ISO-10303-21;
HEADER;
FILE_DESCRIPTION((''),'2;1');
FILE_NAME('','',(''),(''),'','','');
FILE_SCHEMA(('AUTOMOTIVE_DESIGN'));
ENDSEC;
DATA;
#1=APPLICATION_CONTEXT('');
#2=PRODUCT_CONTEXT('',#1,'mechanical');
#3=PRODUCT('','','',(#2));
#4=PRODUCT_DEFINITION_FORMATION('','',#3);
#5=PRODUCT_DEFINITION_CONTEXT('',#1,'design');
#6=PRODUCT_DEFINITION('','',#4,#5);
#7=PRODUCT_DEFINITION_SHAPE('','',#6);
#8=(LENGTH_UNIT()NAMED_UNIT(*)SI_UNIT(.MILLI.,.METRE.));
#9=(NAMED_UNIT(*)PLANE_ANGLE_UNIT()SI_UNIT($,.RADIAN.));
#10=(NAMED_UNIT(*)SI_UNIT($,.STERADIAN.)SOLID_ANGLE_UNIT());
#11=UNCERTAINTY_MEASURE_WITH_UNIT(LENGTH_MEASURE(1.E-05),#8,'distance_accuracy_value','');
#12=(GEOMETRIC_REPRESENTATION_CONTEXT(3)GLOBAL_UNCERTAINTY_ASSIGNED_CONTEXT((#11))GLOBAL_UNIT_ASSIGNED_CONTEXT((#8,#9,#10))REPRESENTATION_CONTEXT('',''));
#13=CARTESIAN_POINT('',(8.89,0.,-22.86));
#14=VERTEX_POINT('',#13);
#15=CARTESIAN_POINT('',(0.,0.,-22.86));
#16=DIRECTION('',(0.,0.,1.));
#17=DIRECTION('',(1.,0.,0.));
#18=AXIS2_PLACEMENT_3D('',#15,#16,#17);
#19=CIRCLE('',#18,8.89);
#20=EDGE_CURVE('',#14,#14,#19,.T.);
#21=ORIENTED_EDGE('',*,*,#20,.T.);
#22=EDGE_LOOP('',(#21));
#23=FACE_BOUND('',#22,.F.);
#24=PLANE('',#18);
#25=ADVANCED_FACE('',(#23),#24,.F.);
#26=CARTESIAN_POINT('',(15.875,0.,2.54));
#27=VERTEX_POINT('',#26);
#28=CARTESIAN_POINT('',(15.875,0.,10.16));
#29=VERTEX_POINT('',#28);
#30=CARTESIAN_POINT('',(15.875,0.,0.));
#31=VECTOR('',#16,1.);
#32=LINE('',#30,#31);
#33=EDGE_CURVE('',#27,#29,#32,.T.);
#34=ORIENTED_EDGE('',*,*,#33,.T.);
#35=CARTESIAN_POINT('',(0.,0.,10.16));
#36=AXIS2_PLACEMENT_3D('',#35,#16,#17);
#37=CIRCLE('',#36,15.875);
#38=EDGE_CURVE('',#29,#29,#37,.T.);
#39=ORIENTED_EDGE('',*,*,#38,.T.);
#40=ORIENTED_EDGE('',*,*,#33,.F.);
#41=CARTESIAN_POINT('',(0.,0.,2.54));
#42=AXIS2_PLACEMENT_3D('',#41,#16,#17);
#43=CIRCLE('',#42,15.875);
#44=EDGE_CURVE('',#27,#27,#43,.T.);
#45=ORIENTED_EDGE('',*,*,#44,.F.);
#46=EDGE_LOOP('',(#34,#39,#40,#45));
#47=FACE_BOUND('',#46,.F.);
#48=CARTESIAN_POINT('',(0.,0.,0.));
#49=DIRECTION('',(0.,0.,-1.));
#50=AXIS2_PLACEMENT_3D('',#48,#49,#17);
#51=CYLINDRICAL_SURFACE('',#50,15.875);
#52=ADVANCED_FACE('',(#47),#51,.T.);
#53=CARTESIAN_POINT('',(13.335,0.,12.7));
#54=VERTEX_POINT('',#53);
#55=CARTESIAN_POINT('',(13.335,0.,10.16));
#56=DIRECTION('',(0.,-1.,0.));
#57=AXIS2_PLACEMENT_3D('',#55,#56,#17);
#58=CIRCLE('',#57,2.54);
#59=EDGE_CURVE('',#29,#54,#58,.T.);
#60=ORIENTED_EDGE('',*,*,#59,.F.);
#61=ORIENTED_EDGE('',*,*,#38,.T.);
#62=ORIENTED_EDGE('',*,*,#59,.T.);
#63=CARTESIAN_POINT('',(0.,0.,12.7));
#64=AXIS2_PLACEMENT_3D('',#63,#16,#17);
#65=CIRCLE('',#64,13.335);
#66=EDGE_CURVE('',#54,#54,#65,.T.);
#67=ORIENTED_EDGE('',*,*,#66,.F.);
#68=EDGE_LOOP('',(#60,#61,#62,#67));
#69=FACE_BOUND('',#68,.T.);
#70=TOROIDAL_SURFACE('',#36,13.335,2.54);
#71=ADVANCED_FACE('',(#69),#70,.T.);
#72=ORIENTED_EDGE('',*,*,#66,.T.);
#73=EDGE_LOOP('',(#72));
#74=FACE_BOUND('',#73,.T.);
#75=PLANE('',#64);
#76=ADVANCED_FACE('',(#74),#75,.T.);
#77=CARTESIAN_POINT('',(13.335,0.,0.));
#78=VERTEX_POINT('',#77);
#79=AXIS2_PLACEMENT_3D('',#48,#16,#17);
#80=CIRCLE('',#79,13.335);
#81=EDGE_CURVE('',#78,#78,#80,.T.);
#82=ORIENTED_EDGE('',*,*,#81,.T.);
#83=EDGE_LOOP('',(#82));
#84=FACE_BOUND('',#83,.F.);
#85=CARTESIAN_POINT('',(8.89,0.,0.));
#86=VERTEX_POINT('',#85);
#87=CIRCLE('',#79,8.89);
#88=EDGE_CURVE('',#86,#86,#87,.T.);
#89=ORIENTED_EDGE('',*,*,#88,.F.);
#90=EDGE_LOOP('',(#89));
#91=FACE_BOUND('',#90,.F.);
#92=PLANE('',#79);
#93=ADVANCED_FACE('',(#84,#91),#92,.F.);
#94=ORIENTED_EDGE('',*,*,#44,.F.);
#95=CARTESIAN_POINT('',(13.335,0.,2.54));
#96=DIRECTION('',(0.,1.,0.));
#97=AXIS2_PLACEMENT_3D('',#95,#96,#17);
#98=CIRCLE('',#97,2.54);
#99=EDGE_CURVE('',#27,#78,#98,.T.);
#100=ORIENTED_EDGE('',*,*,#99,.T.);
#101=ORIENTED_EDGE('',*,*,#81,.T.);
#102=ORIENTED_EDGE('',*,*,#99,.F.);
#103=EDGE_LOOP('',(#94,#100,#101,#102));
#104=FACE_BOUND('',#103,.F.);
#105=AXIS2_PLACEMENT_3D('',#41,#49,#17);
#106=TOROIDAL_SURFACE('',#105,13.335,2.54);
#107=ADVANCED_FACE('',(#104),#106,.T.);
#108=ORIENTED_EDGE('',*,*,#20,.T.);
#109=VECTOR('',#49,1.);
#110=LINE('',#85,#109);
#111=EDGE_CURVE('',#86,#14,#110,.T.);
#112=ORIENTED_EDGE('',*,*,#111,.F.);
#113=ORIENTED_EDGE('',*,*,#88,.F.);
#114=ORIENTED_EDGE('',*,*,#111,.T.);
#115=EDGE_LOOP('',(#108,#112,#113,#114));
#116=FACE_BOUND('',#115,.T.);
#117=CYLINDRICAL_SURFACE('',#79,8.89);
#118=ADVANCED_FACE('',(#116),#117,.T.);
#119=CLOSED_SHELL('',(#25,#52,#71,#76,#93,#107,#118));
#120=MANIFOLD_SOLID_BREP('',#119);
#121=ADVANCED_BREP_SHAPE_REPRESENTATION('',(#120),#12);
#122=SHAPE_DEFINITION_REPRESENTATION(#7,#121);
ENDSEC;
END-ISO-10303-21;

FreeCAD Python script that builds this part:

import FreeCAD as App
import Part
import Sketcher
from FreeCAD import Vector
Q = App.Units.Quantity

doc = App.newDocument("Part")
body = doc.addObject("PartDesign::Body", "Body")

# Sketch on XY plane
sketch1 = body.newObject("Sketcher::SketchObject", "Sketch")
sketch1.AttachmentSupport = (doc.getObject("XY_Plane"), [""])
sketch1.MapMode = "FlatFace"
sketch1.addGeometry(Part.Circle(Vector(0, 0, 0), Vector(0, 0, 1), 16), False)
sketch1.addConstraint(Sketcher.Constraint("Coincident", 0, 3, -1, 1))
sketch1.addConstraint(Sketcher.Constraint("Diameter", 0, Q("1.25 in")))
pad1 = body.newObject("PartDesign::Pad", "Pad")
pad1.Profile = sketch1
pad1.Length = Q("0.5 in")
doc.recompute()

fillet = body.newObject("PartDesign::Fillet", "Fillet")
fillet.Base = (pad1, ["Edge1"])
fillet.UseAllEdges = True
fillet.Radius = Q("0.1 in")

# Sketch on XY plane
sketch2 = body.newObject("Sketcher::SketchObject", "Sketch001")
sketch2.AttachmentSupport = (doc.getObject("XY_Plane"), [""])
sketch2.MapMode = "FlatFace"
sketch2.addGeometry(Part.Circle(Vector(0, 0, 0), Vector(0, 0, 1), 9), False)
sketch2.addConstraint(Sketcher.Constraint("Coincident", 0, 3, -1, 1))
sketch2.addConstraint(Sketcher.Constraint("Diameter", 0, Q("0.7 in")))
pad2 = body.newObject("PartDesign::Pad", "Pad001")
pad2.Profile = sketch2
pad2.Length = Q("0.9 in")
pad2.Reversed = True

doc.recompute()
